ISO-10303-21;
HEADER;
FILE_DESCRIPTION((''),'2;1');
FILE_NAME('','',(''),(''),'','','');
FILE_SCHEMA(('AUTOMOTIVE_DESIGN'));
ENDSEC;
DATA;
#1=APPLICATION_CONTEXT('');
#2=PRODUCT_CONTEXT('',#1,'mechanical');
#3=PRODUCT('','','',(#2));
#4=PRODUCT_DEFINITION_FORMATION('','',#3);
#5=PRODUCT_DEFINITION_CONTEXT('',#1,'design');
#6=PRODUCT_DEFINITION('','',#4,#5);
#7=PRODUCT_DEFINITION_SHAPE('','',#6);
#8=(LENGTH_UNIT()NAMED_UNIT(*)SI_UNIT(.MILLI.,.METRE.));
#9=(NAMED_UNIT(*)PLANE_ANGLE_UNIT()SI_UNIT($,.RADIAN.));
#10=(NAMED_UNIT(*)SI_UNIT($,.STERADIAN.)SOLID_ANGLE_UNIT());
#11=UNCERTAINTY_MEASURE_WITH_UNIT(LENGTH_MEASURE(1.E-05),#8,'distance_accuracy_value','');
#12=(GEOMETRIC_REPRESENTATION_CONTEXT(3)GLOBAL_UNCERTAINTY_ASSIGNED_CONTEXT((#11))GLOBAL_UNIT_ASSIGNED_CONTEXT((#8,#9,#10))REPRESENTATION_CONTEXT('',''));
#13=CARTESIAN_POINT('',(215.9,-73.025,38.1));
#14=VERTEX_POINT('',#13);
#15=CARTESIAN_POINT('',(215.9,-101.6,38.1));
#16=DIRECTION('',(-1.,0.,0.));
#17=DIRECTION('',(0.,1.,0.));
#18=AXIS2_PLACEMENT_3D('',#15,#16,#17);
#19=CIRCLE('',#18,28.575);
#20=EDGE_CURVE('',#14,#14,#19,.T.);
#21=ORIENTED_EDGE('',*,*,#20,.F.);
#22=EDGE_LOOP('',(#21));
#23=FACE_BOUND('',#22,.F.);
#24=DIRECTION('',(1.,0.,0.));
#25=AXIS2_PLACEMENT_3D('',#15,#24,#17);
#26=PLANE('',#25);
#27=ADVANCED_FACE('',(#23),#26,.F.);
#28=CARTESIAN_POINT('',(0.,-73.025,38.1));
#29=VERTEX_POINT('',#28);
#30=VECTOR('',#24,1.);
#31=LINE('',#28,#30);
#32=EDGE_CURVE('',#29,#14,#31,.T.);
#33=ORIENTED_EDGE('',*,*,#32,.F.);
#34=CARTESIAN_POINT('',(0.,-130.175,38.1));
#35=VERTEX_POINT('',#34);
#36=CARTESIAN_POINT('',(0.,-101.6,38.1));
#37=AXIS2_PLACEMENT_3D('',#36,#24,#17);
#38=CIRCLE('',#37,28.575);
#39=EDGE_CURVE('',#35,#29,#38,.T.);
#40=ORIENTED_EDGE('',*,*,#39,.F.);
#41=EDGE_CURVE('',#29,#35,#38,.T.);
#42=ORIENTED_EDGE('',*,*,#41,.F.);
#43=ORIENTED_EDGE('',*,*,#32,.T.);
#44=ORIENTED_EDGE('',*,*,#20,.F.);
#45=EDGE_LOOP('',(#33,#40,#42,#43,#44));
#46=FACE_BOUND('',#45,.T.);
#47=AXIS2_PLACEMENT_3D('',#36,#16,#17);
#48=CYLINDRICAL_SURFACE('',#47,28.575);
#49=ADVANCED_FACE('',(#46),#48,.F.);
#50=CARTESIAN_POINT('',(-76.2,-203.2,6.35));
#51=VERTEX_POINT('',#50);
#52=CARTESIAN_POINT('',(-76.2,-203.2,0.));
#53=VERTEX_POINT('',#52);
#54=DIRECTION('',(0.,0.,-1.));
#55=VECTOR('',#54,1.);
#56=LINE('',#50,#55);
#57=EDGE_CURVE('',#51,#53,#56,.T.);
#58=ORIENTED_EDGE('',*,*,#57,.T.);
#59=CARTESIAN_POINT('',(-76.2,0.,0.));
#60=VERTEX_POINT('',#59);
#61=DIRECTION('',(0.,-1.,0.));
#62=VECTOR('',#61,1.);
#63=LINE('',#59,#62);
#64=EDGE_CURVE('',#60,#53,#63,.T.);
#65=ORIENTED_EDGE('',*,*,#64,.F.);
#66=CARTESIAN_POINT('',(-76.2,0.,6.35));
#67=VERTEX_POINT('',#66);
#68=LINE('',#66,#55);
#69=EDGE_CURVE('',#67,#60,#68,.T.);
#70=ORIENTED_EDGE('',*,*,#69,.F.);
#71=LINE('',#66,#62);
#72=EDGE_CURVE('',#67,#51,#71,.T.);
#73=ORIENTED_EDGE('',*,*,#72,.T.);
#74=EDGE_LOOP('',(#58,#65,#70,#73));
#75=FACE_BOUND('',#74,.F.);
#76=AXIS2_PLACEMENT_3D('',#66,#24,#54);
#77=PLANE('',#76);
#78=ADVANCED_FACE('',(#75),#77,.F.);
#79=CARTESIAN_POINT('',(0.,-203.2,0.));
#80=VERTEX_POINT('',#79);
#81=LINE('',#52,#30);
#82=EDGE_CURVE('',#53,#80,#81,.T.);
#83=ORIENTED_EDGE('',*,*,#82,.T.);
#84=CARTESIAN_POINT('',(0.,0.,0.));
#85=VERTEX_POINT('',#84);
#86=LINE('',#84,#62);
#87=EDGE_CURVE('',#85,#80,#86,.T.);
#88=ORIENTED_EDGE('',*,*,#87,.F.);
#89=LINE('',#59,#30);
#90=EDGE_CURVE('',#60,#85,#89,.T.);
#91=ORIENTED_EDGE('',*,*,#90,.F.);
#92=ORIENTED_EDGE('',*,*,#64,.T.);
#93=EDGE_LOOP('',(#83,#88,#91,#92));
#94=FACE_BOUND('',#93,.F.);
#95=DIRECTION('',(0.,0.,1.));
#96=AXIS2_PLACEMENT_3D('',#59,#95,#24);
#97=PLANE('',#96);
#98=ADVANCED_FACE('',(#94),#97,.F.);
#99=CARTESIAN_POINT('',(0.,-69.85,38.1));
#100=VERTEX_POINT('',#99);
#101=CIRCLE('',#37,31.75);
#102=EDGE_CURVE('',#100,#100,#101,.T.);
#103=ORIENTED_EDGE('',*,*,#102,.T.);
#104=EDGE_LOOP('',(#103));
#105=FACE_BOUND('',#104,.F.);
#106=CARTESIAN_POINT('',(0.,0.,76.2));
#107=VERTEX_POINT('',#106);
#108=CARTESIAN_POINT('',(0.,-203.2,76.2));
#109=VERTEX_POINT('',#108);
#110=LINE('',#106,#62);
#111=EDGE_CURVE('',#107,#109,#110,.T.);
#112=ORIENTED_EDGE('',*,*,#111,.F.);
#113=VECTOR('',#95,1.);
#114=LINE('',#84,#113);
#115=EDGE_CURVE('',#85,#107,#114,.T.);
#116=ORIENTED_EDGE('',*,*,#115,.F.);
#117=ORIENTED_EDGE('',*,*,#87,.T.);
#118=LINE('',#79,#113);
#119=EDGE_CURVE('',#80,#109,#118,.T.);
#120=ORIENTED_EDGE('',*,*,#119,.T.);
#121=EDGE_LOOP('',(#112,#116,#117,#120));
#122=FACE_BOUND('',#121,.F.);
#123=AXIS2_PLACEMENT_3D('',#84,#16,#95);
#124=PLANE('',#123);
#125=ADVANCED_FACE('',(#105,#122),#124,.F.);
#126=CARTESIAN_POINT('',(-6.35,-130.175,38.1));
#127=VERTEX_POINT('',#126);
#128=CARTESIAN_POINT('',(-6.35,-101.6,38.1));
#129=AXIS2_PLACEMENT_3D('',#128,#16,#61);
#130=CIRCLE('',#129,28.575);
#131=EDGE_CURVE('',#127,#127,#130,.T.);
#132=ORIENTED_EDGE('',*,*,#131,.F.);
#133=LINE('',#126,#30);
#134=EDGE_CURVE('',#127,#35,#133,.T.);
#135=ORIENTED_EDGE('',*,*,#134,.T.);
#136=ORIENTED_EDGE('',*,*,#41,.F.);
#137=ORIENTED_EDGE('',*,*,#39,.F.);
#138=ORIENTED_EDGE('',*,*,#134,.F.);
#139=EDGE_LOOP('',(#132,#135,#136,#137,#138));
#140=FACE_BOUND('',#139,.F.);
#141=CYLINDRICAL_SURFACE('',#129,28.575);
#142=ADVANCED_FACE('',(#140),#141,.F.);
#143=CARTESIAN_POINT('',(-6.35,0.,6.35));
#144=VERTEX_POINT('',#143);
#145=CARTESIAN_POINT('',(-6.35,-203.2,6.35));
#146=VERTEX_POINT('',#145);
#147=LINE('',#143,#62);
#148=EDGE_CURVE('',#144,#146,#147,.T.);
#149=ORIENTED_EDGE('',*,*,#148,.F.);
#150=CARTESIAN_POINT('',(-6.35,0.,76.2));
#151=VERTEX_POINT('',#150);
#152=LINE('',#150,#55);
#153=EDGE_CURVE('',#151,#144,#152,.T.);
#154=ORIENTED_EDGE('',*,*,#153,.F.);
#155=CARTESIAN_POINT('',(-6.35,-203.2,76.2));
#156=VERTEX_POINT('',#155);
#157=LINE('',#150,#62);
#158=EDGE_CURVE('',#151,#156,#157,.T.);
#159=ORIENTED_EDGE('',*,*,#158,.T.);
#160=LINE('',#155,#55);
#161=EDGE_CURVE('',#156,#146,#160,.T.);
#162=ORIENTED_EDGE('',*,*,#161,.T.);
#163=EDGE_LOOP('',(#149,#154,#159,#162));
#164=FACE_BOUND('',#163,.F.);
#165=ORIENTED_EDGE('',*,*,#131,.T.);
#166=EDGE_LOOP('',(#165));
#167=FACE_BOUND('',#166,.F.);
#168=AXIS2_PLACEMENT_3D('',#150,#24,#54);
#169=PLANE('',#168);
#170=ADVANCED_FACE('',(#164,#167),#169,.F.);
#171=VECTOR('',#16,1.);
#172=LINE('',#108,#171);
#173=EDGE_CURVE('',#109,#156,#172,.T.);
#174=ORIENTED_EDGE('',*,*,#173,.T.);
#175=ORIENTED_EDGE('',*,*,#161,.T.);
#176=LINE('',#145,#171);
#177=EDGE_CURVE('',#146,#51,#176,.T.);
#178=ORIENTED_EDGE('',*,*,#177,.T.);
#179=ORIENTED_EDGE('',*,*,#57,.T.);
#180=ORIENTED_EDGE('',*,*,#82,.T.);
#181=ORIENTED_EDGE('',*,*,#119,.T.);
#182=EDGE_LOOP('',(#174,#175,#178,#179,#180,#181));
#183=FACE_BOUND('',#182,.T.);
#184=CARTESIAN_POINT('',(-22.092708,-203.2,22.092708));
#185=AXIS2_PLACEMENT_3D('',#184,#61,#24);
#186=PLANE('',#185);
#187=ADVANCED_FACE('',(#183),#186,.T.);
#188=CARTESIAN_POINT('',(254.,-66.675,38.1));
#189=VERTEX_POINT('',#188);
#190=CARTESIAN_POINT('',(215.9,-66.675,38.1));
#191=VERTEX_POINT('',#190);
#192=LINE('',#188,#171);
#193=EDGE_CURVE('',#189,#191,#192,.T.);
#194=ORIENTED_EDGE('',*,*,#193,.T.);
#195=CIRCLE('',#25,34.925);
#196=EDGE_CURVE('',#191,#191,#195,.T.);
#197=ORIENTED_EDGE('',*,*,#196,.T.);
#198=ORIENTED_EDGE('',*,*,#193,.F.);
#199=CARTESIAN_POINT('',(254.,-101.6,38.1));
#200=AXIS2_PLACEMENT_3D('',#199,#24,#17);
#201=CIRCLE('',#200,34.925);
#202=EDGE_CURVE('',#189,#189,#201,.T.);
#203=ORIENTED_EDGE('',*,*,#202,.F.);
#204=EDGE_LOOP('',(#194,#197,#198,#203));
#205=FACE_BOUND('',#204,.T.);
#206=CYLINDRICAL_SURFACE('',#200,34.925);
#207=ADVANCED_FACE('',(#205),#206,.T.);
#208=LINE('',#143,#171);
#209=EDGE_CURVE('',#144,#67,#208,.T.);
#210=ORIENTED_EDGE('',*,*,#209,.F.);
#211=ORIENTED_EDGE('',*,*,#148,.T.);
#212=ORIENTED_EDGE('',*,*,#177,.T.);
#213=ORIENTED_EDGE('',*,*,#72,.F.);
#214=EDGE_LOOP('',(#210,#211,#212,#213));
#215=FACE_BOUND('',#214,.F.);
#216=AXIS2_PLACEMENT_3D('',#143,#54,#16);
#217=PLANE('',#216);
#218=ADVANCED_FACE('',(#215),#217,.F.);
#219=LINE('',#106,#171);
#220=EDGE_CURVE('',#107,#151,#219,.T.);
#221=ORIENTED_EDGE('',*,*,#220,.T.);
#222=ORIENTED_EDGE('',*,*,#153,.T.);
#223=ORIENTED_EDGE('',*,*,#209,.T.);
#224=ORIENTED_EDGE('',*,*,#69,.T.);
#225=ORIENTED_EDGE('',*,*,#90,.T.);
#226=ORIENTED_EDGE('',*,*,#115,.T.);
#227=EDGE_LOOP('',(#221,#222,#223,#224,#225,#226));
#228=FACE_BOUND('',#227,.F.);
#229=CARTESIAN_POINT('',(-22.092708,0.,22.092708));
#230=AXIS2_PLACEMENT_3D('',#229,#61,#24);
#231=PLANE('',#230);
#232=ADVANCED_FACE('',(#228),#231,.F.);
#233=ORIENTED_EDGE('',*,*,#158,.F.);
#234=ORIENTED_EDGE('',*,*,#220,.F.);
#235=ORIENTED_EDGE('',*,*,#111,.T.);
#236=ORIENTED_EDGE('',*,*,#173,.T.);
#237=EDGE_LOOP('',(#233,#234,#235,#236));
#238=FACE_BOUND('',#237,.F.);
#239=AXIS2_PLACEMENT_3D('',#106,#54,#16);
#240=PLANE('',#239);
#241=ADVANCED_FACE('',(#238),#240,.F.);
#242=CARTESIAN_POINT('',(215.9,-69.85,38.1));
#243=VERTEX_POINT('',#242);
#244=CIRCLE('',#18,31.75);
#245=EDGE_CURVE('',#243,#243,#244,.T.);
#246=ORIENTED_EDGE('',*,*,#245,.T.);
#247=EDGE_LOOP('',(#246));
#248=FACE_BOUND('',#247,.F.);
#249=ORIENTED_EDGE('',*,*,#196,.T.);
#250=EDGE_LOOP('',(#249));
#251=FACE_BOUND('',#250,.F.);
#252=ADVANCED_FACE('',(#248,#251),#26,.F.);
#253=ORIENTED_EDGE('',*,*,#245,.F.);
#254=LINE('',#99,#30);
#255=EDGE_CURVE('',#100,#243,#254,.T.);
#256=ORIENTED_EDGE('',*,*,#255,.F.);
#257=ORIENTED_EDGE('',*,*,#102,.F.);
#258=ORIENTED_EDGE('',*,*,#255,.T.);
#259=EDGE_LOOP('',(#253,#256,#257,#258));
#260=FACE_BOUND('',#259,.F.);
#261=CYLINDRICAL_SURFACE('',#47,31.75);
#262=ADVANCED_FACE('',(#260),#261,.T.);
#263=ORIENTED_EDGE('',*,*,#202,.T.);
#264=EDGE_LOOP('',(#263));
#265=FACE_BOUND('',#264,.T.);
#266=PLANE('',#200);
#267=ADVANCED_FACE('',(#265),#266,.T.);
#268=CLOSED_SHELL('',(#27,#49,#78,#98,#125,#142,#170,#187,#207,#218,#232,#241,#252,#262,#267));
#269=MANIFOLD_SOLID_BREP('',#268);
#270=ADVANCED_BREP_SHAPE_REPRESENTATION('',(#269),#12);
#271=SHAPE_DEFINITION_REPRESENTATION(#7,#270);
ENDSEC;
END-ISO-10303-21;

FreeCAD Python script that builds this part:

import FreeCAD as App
import Part
import Sketcher
from FreeCAD import Vector
Q = App.Units.Quantity


def add_polygon(sketch, points):
    """Adds a closed chain of lines whose ends are joined by coincident constraints."""
    first, n = sketch.GeometryCount, len(points)
    for a, b in zip(points, points[1:] + points[:1]):
        sketch.addGeometry(Part.LineSegment(App.Vector(*a, 0), App.Vector(*b, 0)), False)
    for i in range(n):
        sketch.addConstraint(Sketcher.Constraint("Coincident", first + i, 2, first + (i + 1) % n, 1))

doc = App.newDocument("Part")
body = doc.addObject("PartDesign::Body", "Body")

# Sketch on XZ plane
sketch1 = body.newObject("Sketcher::SketchObject", "Sketch")
sketch1.AttachmentSupport = (doc.getObject("XZ_Plane"), [""])
sketch1.MapMode = "FlatFace"
add_polygon(sketch1, [(-76, 6), (-76, 0), (0, 0), (0, 76), (-6, 76), (-6, 6)])  # lines 0-5
sketch1.addConstraint([
    Sketcher.Constraint("Vertical", 0),
    Sketcher.Constraint("Horizontal", 1),
    Sketcher.Constraint("Vertical", 2),
    Sketcher.Constraint("Horizontal", 3),
    Sketcher.Constraint("Vertical", 4),
    Sketcher.Constraint("Horizontal", 5),
    Sketcher.Constraint("Coincident", 1, 2, -1, 1),
    Sketcher.Constraint("Equal", 3, 0),
    Sketcher.Constraint("Equal", 1, 2),
    Sketcher.Constraint("DistanceX", 1, 1, 1, 2, Q("3 in")),
    Sketcher.Constraint("DistanceX", 3, 2, 3, 1, Q("0.25 in")),
])
pad1 = body.newObject("PartDesign::Pad", "Pad")
pad1.Profile = sketch1
pad1.Length = Q("8 in")

# Sketch on YZ plane
sketch2 = body.newObject("Sketcher::SketchObject", "Sketch001")
sketch2.AttachmentSupport = (doc.getObject("YZ_Plane"), [""])
sketch2.MapMode = "FlatFace"
sketch2.addGeometry([
    Part.Circle(Vector(-102, 38, 0), Vector(0, 0, 1), 32),
    Part.Circle(Vector(-102, 38, 0), Vector(0, 0, 1), 29),
], False)
sketch2.addConstraint([
    Sketcher.Constraint("Coincident", 1, 3, 0, 3),
    Sketcher.Constraint("Diameter", 0, Q("2.5 in")),
    Sketcher.Constraint("Diameter", 1, Q("2.25 in")),
    Sketcher.Constraint("DistanceX", 0, 3, -1, 1, Q("4 in")),
    Sketcher.Constraint("DistanceY", -1, 1, 0, 3, Q("1.5 in")),
])
pad2 = body.newObject("PartDesign::Pad", "Pad001")
pad2.Profile = sketch2
pad2.Length = Q("10 in")

# Sketch on YZ plane
sketch3 = body.newObject("Sketcher::SketchObject", "Sketch002")
sketch3.AttachmentSupport = (doc.getObject("YZ_Plane"), [""])
sketch3.MapMode = "FlatFace"
sketch3.AttachmentOffset = App.Placement(Vector(0, 0, -0.25 * 25.4), App.Rotation())
sketch3.addGeometry(Part.Circle(Vector(-102, 38, 0), Vector(0, 0, 1), 29), False)
sketch3.addConstraint([
    Sketcher.Constraint("Diameter", 0, Q("2.25 in")),
    Sketcher.Constraint("DistanceX", 0, 3, -1, 1, Q("4 in")),
    Sketcher.Constraint("DistanceY", -1, 1, 0, 3, Q("1.5 in")),
])
pocket1 = body.newObject("PartDesign::Pocket", "Pocket")
pocket1.Profile = sketch3
pocket1.Type = "ThroughAll"
pocket1.Reversed = True

# Sketch on YZ plane
sketch4 = body.newObject("Sketcher::SketchObject", "Sketch003")
sketch4.AttachmentSupport = (doc.getObject("YZ_Plane"), [""])
sketch4.MapMode = "FlatFace"
sketch4.AttachmentOffset = App.Placement(Vector(0, 0, 10 * 25.4), App.Rotation())
sketch4.addGeometry(Part.Circle(Vector(-102, 38, 0), Vector(0, 0, 1), 35), False)
sketch4.addConstraint([
    Sketcher.Constraint("Diameter", 0, Q("2.75 in")),
    Sketcher.Constraint("DistanceX", 0, 3, -1, 1, Q("4 in")),
    Sketcher.Constraint("DistanceY", -1, 1, 0, 3, Q("1.5 in")),
])
pad3 = body.newObject("PartDesign::Pad", "Pad002")
pad3.Profile = sketch4
pad3.Length = Q("1.5 in")
pad3.Reversed = True

doc.recompute()
